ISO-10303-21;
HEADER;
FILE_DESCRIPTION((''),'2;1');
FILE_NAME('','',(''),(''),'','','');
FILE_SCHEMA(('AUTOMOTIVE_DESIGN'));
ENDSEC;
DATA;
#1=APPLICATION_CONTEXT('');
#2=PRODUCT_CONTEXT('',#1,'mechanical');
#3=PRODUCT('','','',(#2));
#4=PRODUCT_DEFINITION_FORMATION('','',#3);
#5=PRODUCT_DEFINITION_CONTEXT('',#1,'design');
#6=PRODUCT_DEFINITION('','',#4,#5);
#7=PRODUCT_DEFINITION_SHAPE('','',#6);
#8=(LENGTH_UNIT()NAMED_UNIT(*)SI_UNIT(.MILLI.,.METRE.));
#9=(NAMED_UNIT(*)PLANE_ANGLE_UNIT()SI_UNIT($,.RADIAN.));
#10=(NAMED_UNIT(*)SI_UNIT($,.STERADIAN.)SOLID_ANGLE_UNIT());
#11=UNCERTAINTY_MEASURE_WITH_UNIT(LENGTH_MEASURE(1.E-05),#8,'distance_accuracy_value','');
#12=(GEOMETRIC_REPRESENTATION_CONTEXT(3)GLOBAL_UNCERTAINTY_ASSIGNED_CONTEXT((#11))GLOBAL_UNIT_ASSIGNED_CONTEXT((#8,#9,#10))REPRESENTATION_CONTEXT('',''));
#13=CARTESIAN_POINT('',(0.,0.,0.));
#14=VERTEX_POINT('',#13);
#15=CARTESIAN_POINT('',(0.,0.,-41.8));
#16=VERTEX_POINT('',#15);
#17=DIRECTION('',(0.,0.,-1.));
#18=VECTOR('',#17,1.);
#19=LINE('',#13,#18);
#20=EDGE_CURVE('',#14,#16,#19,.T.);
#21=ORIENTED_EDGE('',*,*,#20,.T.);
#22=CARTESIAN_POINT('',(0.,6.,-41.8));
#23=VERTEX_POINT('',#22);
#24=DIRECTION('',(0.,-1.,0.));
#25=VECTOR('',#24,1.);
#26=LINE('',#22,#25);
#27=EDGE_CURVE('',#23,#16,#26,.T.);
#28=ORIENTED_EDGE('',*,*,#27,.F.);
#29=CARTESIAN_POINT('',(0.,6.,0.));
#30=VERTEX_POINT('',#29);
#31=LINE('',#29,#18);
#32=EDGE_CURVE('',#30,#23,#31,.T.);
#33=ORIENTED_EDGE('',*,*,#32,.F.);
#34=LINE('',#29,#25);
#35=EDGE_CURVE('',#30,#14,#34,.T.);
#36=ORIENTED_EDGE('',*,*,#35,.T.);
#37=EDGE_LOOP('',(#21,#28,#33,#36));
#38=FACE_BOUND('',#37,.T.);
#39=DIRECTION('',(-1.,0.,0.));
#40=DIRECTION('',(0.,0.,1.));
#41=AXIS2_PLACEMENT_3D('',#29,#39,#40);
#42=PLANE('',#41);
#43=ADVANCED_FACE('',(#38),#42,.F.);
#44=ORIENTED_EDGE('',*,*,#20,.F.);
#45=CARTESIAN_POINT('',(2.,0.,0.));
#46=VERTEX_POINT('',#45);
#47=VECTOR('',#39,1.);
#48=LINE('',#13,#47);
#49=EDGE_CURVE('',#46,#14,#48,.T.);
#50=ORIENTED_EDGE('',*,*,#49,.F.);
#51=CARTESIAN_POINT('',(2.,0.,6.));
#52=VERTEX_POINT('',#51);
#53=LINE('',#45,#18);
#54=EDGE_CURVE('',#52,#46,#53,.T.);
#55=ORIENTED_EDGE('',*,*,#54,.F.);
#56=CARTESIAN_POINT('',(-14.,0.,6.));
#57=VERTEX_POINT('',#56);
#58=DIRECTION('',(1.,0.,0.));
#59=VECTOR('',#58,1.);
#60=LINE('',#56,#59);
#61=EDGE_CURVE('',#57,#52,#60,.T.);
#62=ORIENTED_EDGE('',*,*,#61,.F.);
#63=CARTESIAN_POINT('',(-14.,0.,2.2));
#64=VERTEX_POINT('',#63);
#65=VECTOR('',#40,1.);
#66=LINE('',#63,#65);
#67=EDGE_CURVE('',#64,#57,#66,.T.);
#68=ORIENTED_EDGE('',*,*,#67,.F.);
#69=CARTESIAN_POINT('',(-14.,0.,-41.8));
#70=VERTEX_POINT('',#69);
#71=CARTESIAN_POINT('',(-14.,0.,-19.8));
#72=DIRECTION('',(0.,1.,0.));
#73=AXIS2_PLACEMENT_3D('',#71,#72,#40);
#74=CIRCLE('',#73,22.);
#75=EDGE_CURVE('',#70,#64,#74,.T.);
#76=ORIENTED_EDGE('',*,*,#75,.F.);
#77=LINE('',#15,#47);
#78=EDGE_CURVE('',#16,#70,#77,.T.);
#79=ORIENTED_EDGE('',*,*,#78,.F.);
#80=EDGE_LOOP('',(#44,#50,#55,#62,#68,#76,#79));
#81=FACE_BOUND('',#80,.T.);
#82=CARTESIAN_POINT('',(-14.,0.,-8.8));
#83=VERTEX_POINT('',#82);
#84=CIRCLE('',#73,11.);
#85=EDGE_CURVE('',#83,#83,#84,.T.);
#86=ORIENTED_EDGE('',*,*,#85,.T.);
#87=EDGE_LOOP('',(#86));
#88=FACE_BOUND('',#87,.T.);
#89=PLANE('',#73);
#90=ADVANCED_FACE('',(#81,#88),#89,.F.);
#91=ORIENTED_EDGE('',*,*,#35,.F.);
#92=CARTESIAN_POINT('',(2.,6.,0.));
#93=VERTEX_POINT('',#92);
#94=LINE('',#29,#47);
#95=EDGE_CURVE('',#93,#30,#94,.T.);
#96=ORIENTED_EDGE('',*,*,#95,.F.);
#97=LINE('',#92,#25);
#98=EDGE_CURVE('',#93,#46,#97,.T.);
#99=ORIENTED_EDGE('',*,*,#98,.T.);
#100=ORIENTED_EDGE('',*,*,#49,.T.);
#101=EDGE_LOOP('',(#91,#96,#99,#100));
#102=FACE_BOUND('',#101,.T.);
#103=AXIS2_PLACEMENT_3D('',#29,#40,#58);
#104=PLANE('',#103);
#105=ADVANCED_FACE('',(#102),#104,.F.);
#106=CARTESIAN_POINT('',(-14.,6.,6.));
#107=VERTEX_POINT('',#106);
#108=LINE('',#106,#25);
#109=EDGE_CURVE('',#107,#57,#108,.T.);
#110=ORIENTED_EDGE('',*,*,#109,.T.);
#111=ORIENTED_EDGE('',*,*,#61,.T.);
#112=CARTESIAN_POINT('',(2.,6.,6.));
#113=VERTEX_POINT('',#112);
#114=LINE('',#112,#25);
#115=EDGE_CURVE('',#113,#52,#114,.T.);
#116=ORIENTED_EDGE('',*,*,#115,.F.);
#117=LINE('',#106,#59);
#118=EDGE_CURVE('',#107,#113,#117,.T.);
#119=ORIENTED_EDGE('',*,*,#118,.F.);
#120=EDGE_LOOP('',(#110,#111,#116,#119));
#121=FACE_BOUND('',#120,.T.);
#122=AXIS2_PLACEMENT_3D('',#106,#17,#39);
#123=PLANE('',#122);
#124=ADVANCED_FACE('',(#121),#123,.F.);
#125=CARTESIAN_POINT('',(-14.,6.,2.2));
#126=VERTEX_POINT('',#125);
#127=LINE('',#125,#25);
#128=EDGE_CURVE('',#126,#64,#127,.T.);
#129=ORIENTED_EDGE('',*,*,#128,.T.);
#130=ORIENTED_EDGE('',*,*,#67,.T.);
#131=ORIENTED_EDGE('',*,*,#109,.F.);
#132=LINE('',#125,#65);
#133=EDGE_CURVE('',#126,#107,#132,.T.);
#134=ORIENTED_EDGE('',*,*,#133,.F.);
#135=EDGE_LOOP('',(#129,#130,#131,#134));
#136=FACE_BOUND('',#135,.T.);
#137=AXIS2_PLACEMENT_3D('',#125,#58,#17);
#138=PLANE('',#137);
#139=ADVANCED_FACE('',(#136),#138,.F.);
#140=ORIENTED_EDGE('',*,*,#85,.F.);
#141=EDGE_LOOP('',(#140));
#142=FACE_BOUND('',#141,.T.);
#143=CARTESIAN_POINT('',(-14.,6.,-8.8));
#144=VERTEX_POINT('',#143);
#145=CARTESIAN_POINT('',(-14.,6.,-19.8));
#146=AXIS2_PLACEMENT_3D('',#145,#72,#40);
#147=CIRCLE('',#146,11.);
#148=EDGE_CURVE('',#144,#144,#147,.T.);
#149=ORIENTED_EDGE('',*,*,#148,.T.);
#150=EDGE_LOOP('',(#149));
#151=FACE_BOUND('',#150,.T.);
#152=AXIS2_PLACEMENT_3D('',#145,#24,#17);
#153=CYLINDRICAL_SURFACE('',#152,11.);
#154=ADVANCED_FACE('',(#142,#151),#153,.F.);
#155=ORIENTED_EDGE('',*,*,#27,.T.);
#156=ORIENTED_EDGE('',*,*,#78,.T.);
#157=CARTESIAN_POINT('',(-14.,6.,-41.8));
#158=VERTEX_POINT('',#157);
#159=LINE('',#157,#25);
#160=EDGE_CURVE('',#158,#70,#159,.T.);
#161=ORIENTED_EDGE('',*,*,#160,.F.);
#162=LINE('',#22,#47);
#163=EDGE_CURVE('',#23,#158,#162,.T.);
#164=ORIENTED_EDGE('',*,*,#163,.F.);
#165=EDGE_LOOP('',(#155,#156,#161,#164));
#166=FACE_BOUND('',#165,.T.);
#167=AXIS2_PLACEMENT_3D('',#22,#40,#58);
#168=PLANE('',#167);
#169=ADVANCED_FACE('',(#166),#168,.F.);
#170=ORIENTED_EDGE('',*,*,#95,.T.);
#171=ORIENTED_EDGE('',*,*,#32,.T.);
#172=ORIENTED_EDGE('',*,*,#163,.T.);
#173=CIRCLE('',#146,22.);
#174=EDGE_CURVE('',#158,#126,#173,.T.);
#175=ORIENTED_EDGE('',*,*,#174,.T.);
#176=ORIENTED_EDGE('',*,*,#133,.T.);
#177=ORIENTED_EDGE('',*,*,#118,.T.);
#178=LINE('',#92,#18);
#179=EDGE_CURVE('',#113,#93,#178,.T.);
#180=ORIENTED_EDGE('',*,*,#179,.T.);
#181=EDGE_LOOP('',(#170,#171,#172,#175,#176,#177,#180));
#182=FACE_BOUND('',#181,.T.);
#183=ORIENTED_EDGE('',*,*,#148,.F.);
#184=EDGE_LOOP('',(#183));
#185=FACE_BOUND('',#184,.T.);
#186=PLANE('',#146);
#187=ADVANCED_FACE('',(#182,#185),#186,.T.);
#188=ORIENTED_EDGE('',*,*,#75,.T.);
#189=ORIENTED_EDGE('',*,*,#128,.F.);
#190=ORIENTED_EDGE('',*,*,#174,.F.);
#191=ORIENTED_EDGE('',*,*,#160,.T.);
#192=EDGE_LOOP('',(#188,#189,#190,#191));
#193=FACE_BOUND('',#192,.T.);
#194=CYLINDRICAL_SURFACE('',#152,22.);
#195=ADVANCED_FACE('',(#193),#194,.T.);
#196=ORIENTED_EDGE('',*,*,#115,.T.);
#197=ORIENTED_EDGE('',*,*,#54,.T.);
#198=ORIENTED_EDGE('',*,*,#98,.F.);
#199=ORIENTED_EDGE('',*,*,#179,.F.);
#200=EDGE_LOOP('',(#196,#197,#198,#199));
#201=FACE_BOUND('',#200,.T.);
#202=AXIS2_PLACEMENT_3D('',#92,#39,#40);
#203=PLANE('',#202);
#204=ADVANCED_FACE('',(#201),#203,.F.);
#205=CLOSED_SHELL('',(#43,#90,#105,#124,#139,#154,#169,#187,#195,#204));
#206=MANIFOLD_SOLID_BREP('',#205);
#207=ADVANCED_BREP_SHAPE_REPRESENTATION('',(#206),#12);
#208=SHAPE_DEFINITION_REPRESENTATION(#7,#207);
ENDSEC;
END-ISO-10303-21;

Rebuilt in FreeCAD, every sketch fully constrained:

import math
import FreeCAD as App
import Part
import Sketcher
from FreeCAD import Vector

doc = App.newDocument("Part")
body = doc.addObject("PartDesign::Body", "Body")

sketch1 = body.newObject("Sketcher::SketchObject", "Sketch")
sketch1.AttachmentSupport = (doc.getObject("XZ_Plane"), [""])
sketch1.MapMode = "FlatFace"
sketch1.addGeometry([
    Part.LineSegment(Vector(0, 0, 0), Vector(0, -41.8, 0)),
    Part.LineSegment(Vector(0, -41.8, 0), Vector(-14, -41.8, 0)),
    Part.ArcOfCircle(Part.Circle(Vector(-14, -19.8, 0), Vector(0, 0, 1), 22), math.radians(90), math.radians(270)),
    Part.LineSegment(Vector(-14, 2.2, 0), Vector(-14, 6, 0)),
    Part.LineSegment(Vector(-14, 6, 0), Vector(2, 6, 0)),
    Part.LineSegment(Vector(2, 6, 0), Vector(2, 0, 0)),
    Part.LineSegment(Vector(2, 0, 0), Vector(0, 0, 0)),
    Part.Circle(Vector(-14, -19.8, 0), Vector(0, 0, 1), 11),
], False)
sketch1.addConstraint([
    Sketcher.Constraint("Coincident", 0, 2, 1, 1),
    Sketcher.Constraint("Tangent", 1, 2, 2, 2),
    Sketcher.Constraint("Coincident", 2, 1, 3, 1),
    Sketcher.Constraint("Coincident", 3, 2, 4, 1),
    Sketcher.Constraint("Coincident", 4, 2, 5, 1),
    Sketcher.Constraint("Coincident", 5, 2, 6, 1),
    Sketcher.Constraint("Coincident", 6, 2, 0, 1),
    Sketcher.Constraint("Vertical", 0),
    Sketcher.Constraint("Horizontal", 1),
    Sketcher.Constraint("Vertical", 3),
    Sketcher.Constraint("Horizontal", 4),
    Sketcher.Constraint("Vertical", 5),
    Sketcher.Constraint("Horizontal", 6),
    Sketcher.Constraint("Coincident", 6, 2, -1, 1),
    Sketcher.Constraint("Coincident", 7, 3, 2, 3),
    Sketcher.Constraint("Vertical", 1, 2, 2, 1),
    Sketcher.Constraint("Diameter", 7, 22.0),
    Sketcher.Constraint("Radius", 2, 22.0),
    Sketcher.Constraint("DistanceX", 1, 2, 1, 1, 14.0),
    Sketcher.Constraint("DistanceX", 4, 1, 4, 2, 16.0),
    Sketcher.Constraint("DistanceY", 5, 2, 5, 1, 6.0),
    Sketcher.Constraint("DistanceY", 0, 2, 0, 1, 41.8),
])
pad1 = body.newObject("PartDesign::Pad", "Pad")
pad1.Profile = sketch1
pad1.Length = 6
pad1.Reversed = True

doc.recompute()
